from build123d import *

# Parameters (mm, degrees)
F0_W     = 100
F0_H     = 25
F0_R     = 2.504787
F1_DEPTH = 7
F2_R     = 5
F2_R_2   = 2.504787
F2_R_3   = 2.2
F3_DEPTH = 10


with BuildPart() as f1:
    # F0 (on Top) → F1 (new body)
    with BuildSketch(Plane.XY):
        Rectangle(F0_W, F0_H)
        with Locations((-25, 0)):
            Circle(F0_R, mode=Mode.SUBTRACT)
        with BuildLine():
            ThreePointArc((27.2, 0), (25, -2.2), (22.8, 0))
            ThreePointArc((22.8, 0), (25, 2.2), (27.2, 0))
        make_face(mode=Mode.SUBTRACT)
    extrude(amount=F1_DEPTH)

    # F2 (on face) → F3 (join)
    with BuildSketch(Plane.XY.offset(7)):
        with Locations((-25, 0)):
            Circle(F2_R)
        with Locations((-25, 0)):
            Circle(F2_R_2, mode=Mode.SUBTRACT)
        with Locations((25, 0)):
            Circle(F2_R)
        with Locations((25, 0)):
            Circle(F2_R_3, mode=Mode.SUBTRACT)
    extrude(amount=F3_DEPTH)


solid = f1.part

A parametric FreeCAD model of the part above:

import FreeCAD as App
import Part
import Sketcher
from FreeCAD import Vector
Q = App.Units.Quantity


def add_polygon(sketch, points):
    """Adds a closed chain of lines whose ends are joined by coincident constraints."""
    first, n = sketch.GeometryCount, len(points)
    for a, b in zip(points, points[1:] + points[:1]):
        sketch.addGeometry(Part.LineSegment(App.Vector(*a, 0), App.Vector(*b, 0)), False)
    for i in range(n):
        sketch.addConstraint(Sketcher.Constraint("Coincident", first + i, 2, first + (i + 1) % n, 1))

doc = App.newDocument("Part")
params = doc.addObject("Spreadsheet::Sheet", "Params")
for row, (alias, value) in enumerate([
    ("sketch1_diameter", "4.4 mm"),
    ("sketch1_width", "100 mm"),
    ("sketch1_height", "25 mm"),
    ("pad1_length", "7 mm"),
    ("sketch2_diameter", "10 mm"),
    ("sketch2_diameter2", "4.4 mm"),
    ("pad2_length", "10 mm"),
], start=1):
    params.set(f"A{row}", alias)
    params.set(f"B{row}", "=" + value)
    params.setAlias(f"B{row}", alias)

body = doc.addObject("PartDesign::Body", "Body")

# Sketch on XY plane
sketch1 = body.newObject("Sketcher::SketchObject", "Sketch")
sketch1.AttachmentSupport = (doc.getObject("XY_Plane"), [""])
sketch1.MapMode = "FlatFace"
add_polygon(sketch1, [(-50, 12.5), (-50, -12.5), (50, -12.5), (50, 12.5)])  # lines 0-3
sketch1.addGeometry(Part.Circle(Vector(25, 0, 0), Vector(0, 0, 1), 2.2), False)  # 4
sketch1.addGeometry(Part.Circle(Vector(-25, 0, 0), Vector(0, 0, 1), 2.504787), False)  # 5
sketch1.addConstraint([
    Sketcher.Constraint("Vertical", 0),
    Sketcher.Constraint("Horizontal", 1),
    Sketcher.Constraint("Vertical", 2),
    Sketcher.Constraint("Horizontal", 3),
    Sketcher.Constraint("Symmetric", 4, 3, 5, 3, -1, 1),
    Sketcher.Constraint("Symmetric", 0, 2, 2, 2, -1, 1),
    Sketcher.Constraint("PointOnObject", 4, 3, -1),
    Sketcher.Constraint("Diameter", 4, Q("4.4 mm")),
    Sketcher.Constraint("DistanceX", 1, 1, 1, 2, Q("100 mm")),
    Sketcher.Constraint("DistanceY", 0, 2, 0, 1, Q("25 mm")),
    Sketcher.Constraint("DistanceX", -1, 1, 4, 3, Q("25 mm")),
    Sketcher.Constraint("Diameter", 5, Q("5.009574 mm")),
])
sketch1.setExpression("Constraints[11]", "Params.sketch1_diameter")
sketch1.setExpression("Constraints[12]", "Params.sketch1_width")
sketch1.setExpression("Constraints[13]", "Params.sketch1_height")
pad1 = body.newObject("PartDesign::Pad", "Pad")
pad1.Profile = sketch1
pad1.setExpression("Length", "Params.pad1_length")

# Sketch on XY plane
sketch2 = body.newObject("Sketcher::SketchObject", "Sketch001")
sketch2.AttachmentSupport = (doc.getObject("XY_Plane"), [""])
sketch2.MapMode = "FlatFace"
sketch2.AttachmentOffset = App.Placement(Vector(0, 0, 7), App.Rotation())
sketch2.addGeometry([
    Part.Circle(Vector(-25, 0, 0), Vector(0, 0, 1), 5),
    Part.Circle(Vector(-25, 0, 0), Vector(0, 0, 1), 2.504787),
    Part.Circle(Vector(25, 0, 0), Vector(0, 0, 1), 5),
    Part.Circle(Vector(25, 0, 0), Vector(0, 0, 1), 2.2),
], False)
sketch2.addConstraint([
    Sketcher.Constraint("Coincident", 1, 3, 0, 3),
    Sketcher.Constraint("Coincident", 3, 3, 2, 3),
    Sketcher.Constraint("Equal", 0, 2),
    Sketcher.Constraint("Symmetric", 0, 3, 2, 3, -1, 1),
    Sketcher.Constraint("PointOnObject", 0, 3, -1),
    Sketcher.Constraint("Diameter", 0, Q("10 mm")),
    Sketcher.Constraint("Diameter", 3, Q("4.4 mm")),
    Sketcher.Constraint("DistanceX", 0, 3, -1, 1, Q("25 mm")),
    Sketcher.Constraint("Diameter", 1, Q("5.009574 mm")),
])
sketch2.setExpression("Constraints[5]", "Params.sketch2_diameter")
sketch2.setExpression("Constraints[6]", "Params.sketch2_diameter2")
pad2 = body.newObject("PartDesign::Pad", "Pad001")
pad2.Profile = sketch2
pad2.setExpression("Length", "Params.pad2_length")

doc.recompute()
